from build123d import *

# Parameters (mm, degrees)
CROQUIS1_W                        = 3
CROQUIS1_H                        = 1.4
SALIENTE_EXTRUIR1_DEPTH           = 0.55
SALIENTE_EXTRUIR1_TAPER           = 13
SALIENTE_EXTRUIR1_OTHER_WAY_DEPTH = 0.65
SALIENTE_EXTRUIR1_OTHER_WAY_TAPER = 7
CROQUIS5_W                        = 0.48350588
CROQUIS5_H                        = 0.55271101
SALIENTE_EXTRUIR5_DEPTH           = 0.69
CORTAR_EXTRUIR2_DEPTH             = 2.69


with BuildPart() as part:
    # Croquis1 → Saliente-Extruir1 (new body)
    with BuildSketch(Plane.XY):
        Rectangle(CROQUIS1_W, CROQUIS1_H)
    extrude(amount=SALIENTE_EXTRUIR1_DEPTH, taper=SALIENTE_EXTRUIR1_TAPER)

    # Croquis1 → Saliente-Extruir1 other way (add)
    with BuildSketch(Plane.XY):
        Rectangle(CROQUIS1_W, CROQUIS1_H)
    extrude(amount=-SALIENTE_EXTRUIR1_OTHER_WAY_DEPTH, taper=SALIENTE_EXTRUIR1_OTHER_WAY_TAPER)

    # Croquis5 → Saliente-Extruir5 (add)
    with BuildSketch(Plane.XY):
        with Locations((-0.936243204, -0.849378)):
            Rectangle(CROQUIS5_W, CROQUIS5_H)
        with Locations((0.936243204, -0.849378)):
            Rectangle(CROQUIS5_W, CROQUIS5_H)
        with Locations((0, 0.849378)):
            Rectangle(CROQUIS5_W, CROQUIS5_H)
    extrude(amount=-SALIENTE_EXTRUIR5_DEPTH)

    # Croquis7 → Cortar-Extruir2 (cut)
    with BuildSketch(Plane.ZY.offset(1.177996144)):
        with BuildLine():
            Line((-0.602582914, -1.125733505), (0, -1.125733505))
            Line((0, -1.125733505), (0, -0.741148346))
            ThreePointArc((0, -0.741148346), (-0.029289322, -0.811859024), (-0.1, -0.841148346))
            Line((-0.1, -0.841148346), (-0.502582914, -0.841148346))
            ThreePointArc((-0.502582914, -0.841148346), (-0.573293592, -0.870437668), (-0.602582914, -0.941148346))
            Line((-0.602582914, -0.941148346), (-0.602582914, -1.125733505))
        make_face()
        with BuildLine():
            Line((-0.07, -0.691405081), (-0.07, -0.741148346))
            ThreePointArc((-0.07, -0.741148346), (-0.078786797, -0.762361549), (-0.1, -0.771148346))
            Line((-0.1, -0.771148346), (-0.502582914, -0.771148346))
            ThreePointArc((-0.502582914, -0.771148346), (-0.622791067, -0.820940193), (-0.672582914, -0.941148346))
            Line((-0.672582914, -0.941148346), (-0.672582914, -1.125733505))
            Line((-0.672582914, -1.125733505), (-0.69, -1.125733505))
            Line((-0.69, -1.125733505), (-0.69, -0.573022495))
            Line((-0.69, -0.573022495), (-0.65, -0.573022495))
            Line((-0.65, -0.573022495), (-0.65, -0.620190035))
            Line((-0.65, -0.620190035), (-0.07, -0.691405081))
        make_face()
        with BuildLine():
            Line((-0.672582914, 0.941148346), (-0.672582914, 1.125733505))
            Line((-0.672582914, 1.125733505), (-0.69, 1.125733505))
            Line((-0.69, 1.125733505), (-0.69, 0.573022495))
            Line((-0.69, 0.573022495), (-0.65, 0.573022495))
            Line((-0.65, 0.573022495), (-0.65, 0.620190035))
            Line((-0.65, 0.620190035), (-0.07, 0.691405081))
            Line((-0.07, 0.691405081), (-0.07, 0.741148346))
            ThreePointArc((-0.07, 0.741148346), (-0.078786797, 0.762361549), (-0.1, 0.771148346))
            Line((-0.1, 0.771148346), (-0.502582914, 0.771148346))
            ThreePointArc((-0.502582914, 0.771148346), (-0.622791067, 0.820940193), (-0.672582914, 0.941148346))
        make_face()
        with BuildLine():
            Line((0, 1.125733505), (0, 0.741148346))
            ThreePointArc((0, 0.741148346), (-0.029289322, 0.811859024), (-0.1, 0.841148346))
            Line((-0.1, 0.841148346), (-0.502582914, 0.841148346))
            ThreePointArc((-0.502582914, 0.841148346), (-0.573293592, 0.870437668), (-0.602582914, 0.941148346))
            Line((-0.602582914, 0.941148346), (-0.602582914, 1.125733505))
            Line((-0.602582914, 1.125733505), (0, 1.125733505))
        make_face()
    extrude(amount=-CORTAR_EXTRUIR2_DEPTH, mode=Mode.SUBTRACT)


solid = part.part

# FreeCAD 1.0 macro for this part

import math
import FreeCAD as App
import Part
import Sketcher
Q = App.Units.Quantity


def add_polygon(sketch, points):
    """Adds a closed chain of lines whose ends are joined by coincident constraints."""
    first, n = sketch.GeometryCount, len(points)
    for a, b in zip(points, points[1:] + points[:1]):
        sketch.addGeometry(Part.LineSegment(App.Vector(*a, 0), App.Vector(*b, 0)), False)
    for i in range(n):
        sketch.addConstraint(Sketcher.Constraint("Coincident", first + i, 2, first + (i + 1) % n, 1))

doc = App.newDocument("Part")
body = doc.addObject("PartDesign::Body", "Body")

sketch1 = body.newObject("Sketcher::SketchObject", "Sketch")
sketch1.AttachmentSupport = (doc.getObject("XY_Plane"), [""])
sketch1.MapMode = "FlatFace"
add_polygon(sketch1, [(-1.5, 0.7), (-1.5, -0.7), (1.5, -0.7), (1.5, 0.7)])
sketch1.addConstraint([
    Sketcher.Constraint("Vertical", 0),
    Sketcher.Constraint("Horizontal", 1),
    Sketcher.Constraint("Vertical", 2),
    Sketcher.Constraint("Horizontal", 3),
    Sketcher.Constraint("Symmetric", 0, 2, 2, 2, -1, 1),
    Sketcher.Constraint("DistanceX", 1, 1, 1, 2, 3.0),
    Sketcher.Constraint("DistanceY", 0, 2, 0, 1, 1.4),
])
pad1 = body.newObject("PartDesign::Pad", "Pad")
pad1.Profile = sketch1
pad1.Length = 0.55
pad1.TaperAngle = -13

sketch2 = body.newObject("Sketcher::SketchObject", "Sketch001")
sketch2.AttachmentSupport = (doc.getObject("XY_Plane"), [""])
sketch2.MapMode = "FlatFace"
add_polygon(sketch2, [(-1.5, 0.7), (-1.5, -0.7), (1.5, -0.7), (1.5, 0.7)])
sketch2.addConstraint([
    Sketcher.Constraint("Vertical", 0),
    Sketcher.Constraint("Horizontal", 1),
    Sketcher.Constraint("Vertical", 2),
    Sketcher.Constraint("Horizontal", 3),
    Sketcher.Constraint("Symmetric", 0, 2, 2, 2, -1, 1),
    Sketcher.Constraint("DistanceX", 1, 1, 1, 2, 3.0),
    Sketcher.Constraint("DistanceY", 0, 2, 0, 1, 1.4),
])
pad2 = body.newObject("PartDesign::Pad", "Pad001")
pad2.Profile = sketch2
pad2.Length = 0.65
pad2.Reversed = True
pad2.TaperAngle = -7

sketch3 = body.newObject("Sketcher::SketchObject", "Sketch002")
sketch3.AttachmentSupport = (doc.getObject("XY_Plane"), [""])
sketch3.MapMode = "FlatFace"
add_polygon(sketch3, [(-1.18, -0.57), (-1.18, -1.13), (-0.69, -1.13), (-0.69, -0.57)])
add_polygon(sketch3, [(0.69, -0.57), (0.69, -1.13), (1.18, -1.13), (1.18, -0.57)])
add_polygon(sketch3, [(-0.24, 1.13), (-0.24, 0.57), (0.24, 0.57), (0.24, 1.13)])
sketch3.addConstraint([
    Sketcher.Constraint("Vertical", 0),
    Sketcher.Constraint("Horizontal", 1),
    Sketcher.Constraint("Vertical", 2),
    Sketcher.Constraint("Horizontal", 3),
    Sketcher.Constraint("Vertical", 4),
    Sketcher.Constraint("Horizontal", 5),
    Sketcher.Constraint("Vertical", 6),
    Sketcher.Constraint("Horizontal", 7),
    Sketcher.Constraint("Vertical", 8),
    Sketcher.Constraint("Horizontal", 9),
    Sketcher.Constraint("Vertical", 10),
    Sketcher.Constraint("Horizontal", 11),
    Sketcher.Constraint("Symmetric", 1, 2, 4, 2, -2),
    Sketcher.Constraint("Symmetric", 3, 2, 6, 2, -2),
    Sketcher.Constraint("Equal", 7, 9),
    Sketcher.Constraint("Equal", 6, 8),
    Sketcher.Constraint("DistanceY", 0, 2, 0, 1, 0.552711),
    Sketcher.Constraint("DistanceX", 1, 1, 1, 2, 0.483506),
    Sketcher.Constraint("DistanceX", 1, 2, -1, 1, 0.69449),
    Sketcher.Constraint("DistanceX", 8, 2, 6, 2, 1.419749),
    Sketcher.Constraint("DistanceY", 0, 2, -1, 1, 1.125734),
    Sketcher.Constraint("DistanceY", -1, 1, 8, 2, 0.573022),
])
pad3 = body.newObject("PartDesign::Pad", "Pad002")
pad3.Profile = sketch3
pad3.Length = 0.69
pad3.Reversed = True

sketch4 = body.newObject("Sketcher::SketchObject", "Sketch003")
sketch4.AttachmentSupport = (doc.getObject("YZ_Plane"), [""])
sketch4.MapMode = "FlatFace"
sketch4.AttachmentOffset = App.Placement(App.Vector(0, 0, -1.177996), App.Rotation())
sketch4.addGeometry([
    Part.LineSegment(App.Vector(-1.126, -0.603, 0), App.Vector(-1.126, 0, 0)),
    Part.LineSegment(App.Vector(-1.126, 0, 0), App.Vector(-0.741, 0, 0)),
    Part.ArcOfCircle(Part.Circle(App.Vector(-0.741, -0.1, 0), App.Vector(0, 0, 1), 0.1), math.radians(90), math.radians(180)),
    Part.LineSegment(App.Vector(-0.841, -0.1, 0), App.Vector(-0.841, -0.503, 0)),
    Part.ArcOfCircle(Part.Circle(App.Vector(-0.941, -0.503, 0), App.Vector(0, 0, 1), 0.1), math.radians(-90), math.radians(0)),
    Part.LineSegment(App.Vector(-0.941, -0.603, 0), App.Vector(-1.126, -0.603, 0)),
    Part.LineSegment(App.Vector(-0.741, -0.07, 0), App.Vector(-0.691, -0.07, 0)),
    Part.LineSegment(App.Vector(-0.691, -0.07, 0), App.Vector(-0.62, -0.65, 0)),
    Part.LineSegment(App.Vector(-0.62, -0.65, 0), App.Vector(-0.573, -0.65, 0)),
    Part.LineSegment(App.Vector(-0.573, -0.65, 0), App.Vector(-0.573, -0.69, 0)),
    Part.LineSegment(App.Vector(-0.573, -0.69, 0), App.Vector(-1.126, -0.69, 0)),
    Part.LineSegment(App.Vector(-1.126, -0.69, 0), App.Vector(-1.126, -0.673, 0)),
    Part.LineSegment(App.Vector(-1.126, -0.673, 0), App.Vector(-0.941, -0.673, 0)),
    Part.ArcOfCircle(Part.Circle(App.Vector(-0.941, -0.503, 0), App.Vector(0, 0, 1), 0.17), math.radians(-90), math.radians(0)),
    Part.LineSegment(App.Vector(-0.771, -0.503, 0), App.Vector(-0.771, -0.1, 0)),
    Part.ArcOfCircle(Part.Circle(App.Vector(-0.741, -0.1, 0), App.Vector(0, 0, 1), 0.03), math.radians(90), math.radians(180)),
    Part.LineSegment(App.Vector(0.941, -0.673, 0), App.Vector(1.126, -0.673, 0)),
    Part.LineSegment(App.Vector(1.126, -0.673, 0), App.Vector(1.126, -0.69, 0)),
    Part.LineSegment(App.Vector(1.126, -0.69, 0), App.Vector(0.573, -0.69, 0)),
    Part.LineSegment(App.Vector(0.573, -0.69, 0), App.Vector(0.573, -0.65, 0)),
    Part.LineSegment(App.Vector(0.573, -0.65, 0), App.Vector(0.62, -0.65, 0)),
    Part.LineSegment(App.Vector(0.62, -0.65, 0), App.Vector(0.691, -0.07, 0)),
    Part.LineSegment(App.Vector(0.691, -0.07, 0), App.Vector(0.741, -0.07, 0)),
    Part.ArcOfCircle(Part.Circle(App.Vector(0.741, -0.1, 0), App.Vector(0, 0, 1), 0.03), math.radians(0), math.radians(90)),
    Part.LineSegment(App.Vector(0.771, -0.1, 0), App.Vector(0.771, -0.503, 0)),
    Part.ArcOfCircle(Part.Circle(App.Vector(0.941, -0.503, 0), App.Vector(0, 0, 1), 0.17), math.radians(180), math.radians(270)),
    Part.LineSegment(App.Vector(0.741, 0, 0), App.Vector(1.126, 0, 0)),
    Part.LineSegment(App.Vector(1.126, 0, 0), App.Vector(1.126, -0.603, 0)),
    Part.LineSegment(App.Vector(1.126, -0.603, 0), App.Vector(0.941, -0.603, 0)),
    Part.ArcOfCircle(Part.Circle(App.Vector(0.941, -0.503, 0), App.Vector(0, 0, 1), 0.1), math.radians(180), math.radians(270)),
    Part.LineSegment(App.Vector(0.841, -0.503, 0), App.Vector(0.841, -0.1, 0)),
    Part.ArcOfCircle(Part.Circle(App.Vector(0.741, -0.1, 0), App.Vector(0, 0, 1), 0.1), math.radians(0), math.radians(90)),
], False)
sketch4.addConstraint([
    Sketcher.Constraint("Coincident", 0, 2, 1, 1),
    Sketcher.Constraint("Tangent", 1, 2, 2, 1),
    Sketcher.Constraint("Tangent", 2, 2, 3, 1),
    Sketcher.Constraint("Tangent", 3, 2, 4, 2),
    Sketcher.Constraint("Tangent", 4, 1, 5, 1),
    Sketcher.Constraint("Coincident", 5, 2, 0, 1),
    Sketcher.Constraint("Coincident", 6, 2, 7, 1),
    Sketcher.Constraint("Coincident", 7, 2, 8, 1),
    Sketcher.Constraint("Coincident", 8, 2, 9, 1),
    Sketcher.Constraint("Coincident", 9, 2, 10, 1),
    Sketcher.Constraint("Coincident", 10, 2, 11, 1),
    Sketcher.Constraint("Coincident", 11, 2, 12, 1),
    Sketcher.Constraint("Tangent", 12, 2, 13, 1),
    Sketcher.Constraint("Tangent", 13, 2, 14, 1),
    Sketcher.Constraint("Tangent", 14, 2, 15, 2),
    Sketcher.Constraint("Tangent", 15, 1, 6, 1),
    Sketcher.Constraint("Coincident", 16, 2, 17, 1),
    Sketcher.Constraint("Coincident", 17, 2, 18, 1),
    Sketcher.Constraint("Coincident", 18, 2, 19, 1),
    Sketcher.Constraint("Coincident", 19, 2, 20, 1),
    Sketcher.Constraint("Coincident", 20, 2, 21, 1),
    Sketcher.Constraint("Coincident", 21, 2, 22, 1),
    Sketcher.Constraint("Tangent", 22, 2, 23, 2),
    Sketcher.Constraint("Tangent", 23, 1, 24, 1),
    Sketcher.Constraint("Tangent", 24, 2, 25, 1),
    Sketcher.Constraint("Tangent", 25, 2, 16, 1),
    Sketcher.Constraint("Coincident", 26, 2, 27, 1),
    Sketcher.Constraint("Coincident", 27, 2, 28, 1),
    Sketcher.Constraint("Tangent", 28, 2, 29, 2),
    Sketcher.Constraint("Tangent", 29, 1, 30, 1),
    Sketcher.Constraint("Tangent", 30, 2, 31, 1),
    Sketcher.Constraint("Tangent", 31, 2, 26, 1),
    Sketcher.Constraint("Vertical", 0),
    Sketcher.Constraint("Horizontal", 1),
    Sketcher.Constraint("Vertical", 3),
    Sketcher.Constraint("Horizontal", 5),
    Sketcher.Constraint("Horizontal", 6),
    Sketcher.Constraint("Horizontal", 8),
    Sketcher.Constraint("Vertical", 9),
    Sketcher.Constraint("Horizontal", 10),
    Sketcher.Constraint("Vertical", 11),
    Sketcher.Constraint("Horizontal", 12),
    Sketcher.Constraint("Vertical", 14),
    Sketcher.Constraint("Horizontal", 16),
    Sketcher.Constraint("Vertical", 17),
    Sketcher.Constraint("Horizontal", 18),
    Sketcher.Constraint("Vertical", 19),
    Sketcher.Constraint("Horizontal", 20),
    Sketcher.Constraint("Horizontal", 22),
    Sketcher.Constraint("Vertical", 24),
    Sketcher.Constraint("Horizontal", 26),
    Sketcher.Constraint("Vertical", 27),
    Sketcher.Constraint("Horizontal", 28),
    Sketcher.Constraint("Vertical", 30),
    Sketcher.Constraint("Coincident", 13, 3, 4, 3),
    Sketcher.Constraint("Coincident", 15, 3, 2, 3),
    Sketcher.Constraint("Coincident", 29, 3, 25, 3),
    Sketcher.Constraint("Coincident", 31, 3, 23, 3),
    Sketcher.Constraint("Equal", 2, 4),
    Sketcher.Constraint("Equal", 15, 23),
    Sketcher.Constraint("Equal", 13, 25),
    Sketcher.Constraint("Equal", 4, 29),
    Sketcher.Constraint("Symmetric", 0, 2, 26, 2, -1, 1),
    Sketcher.Constraint("Symmetric", 2, 3, 23, 3, -2),
    Sketcher.Constraint("Symmetric", 11, 2, 16, 2, -2),
    Sketcher.Constraint("Symmetric", 9, 2, 18, 2, -2),
    Sketcher.Constraint("Symmetric", 7, 2, 20, 2, -2),
    Sketcher.Constraint("Vertical", 5, 2, 10, 2),
    Sketcher.Constraint("Equal", 6, 22),
    Sketcher.Constraint("Radius", 2, 0.1),
    Sketcher.Constraint("Angle", 7, Q("-83 deg")),
    Sketcher.Constraint("Radius", 13, 0.17),
    Sketcher.Constraint("DistanceY", 9, 2, 9, 1, 0.04),
    Sketcher.Constraint("DistanceY", 7, 2, -1, 1, 0.65),
    Sketcher.Constraint("DistanceX", 10, 2, 10, 1, 0.552711),
    Sketcher.Constraint("DistanceX", 1, 1, 1, 2, 0.384585),
    Sketcher.Constraint("DistanceX", 6, 1, 6, 2, 0.049743),
    Sketcher.Constraint("DistanceY", 0, 1, 0, 2, 0.602583),
    Sketcher.Constraint("DistanceX", 2, 3, -1, 1, 0.741148),
])
pocket1 = body.newObject("PartDesign::Pocket", "Pocket")
pocket1.Profile = sketch4
pocket1.Length = 2.69
pocket1.Reversed = True

doc.recompute()
